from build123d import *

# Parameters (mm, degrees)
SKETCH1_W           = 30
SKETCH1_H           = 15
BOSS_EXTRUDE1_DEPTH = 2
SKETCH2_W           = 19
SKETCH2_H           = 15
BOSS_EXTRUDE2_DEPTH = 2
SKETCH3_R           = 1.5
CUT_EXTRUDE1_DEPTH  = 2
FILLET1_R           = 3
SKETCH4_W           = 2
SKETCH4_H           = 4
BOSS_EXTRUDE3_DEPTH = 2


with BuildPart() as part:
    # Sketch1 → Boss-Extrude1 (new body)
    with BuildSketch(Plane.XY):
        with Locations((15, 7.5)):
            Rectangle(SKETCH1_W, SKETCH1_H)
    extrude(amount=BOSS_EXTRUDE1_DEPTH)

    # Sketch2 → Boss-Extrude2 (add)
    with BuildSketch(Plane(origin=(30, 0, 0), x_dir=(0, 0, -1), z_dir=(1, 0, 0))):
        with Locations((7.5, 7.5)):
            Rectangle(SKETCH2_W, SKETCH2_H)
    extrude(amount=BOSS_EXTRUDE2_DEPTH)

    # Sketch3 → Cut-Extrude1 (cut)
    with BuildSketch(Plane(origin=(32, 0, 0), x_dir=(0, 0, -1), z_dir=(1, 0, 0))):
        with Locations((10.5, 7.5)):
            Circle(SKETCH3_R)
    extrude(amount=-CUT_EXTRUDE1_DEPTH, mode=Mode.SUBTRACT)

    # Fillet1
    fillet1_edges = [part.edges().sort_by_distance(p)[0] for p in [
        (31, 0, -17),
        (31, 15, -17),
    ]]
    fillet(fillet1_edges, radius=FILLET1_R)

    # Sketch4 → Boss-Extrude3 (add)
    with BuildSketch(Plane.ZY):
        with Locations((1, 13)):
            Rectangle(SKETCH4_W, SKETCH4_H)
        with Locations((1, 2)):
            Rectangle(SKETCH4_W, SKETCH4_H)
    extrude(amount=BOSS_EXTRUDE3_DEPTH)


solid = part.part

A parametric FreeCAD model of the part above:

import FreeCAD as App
import Part
import Sketcher

V = App.Vector
Q = App.Units.Quantity


def edges_at(feature, points):
    """Names of the edges that pass closest to the given points."""
    edges = feature.Shape.Edges
    near = lambda p: min(range(len(edges)), key=lambda i: edges[i].distToShape(Part.Vertex(*p))[0])
    return sorted({f"Edge{near(p) + 1}" for p in points})


def add_polygon(sketch, points):
    """Adds a closed chain of lines whose ends are joined by coincident constraints."""
    first, n = sketch.GeometryCount, len(points)
    for a, b in zip(points, points[1:] + points[:1]):
        sketch.addGeometry(Part.LineSegment(App.Vector(*a, 0), App.Vector(*b, 0)), False)
    for i in range(n):
        sketch.addConstraint(Sketcher.Constraint("Coincident", first + i, 2, first + (i + 1) % n, 1))

doc = App.newDocument("Part")
params = doc.addObject("Spreadsheet::Sheet", "Params")
for row, (alias, value) in enumerate([
    ("sketch1_width", "30 mm"),
    ("sketch1_height", "15 mm"),
    ("pad1_length", "2 mm"),
    ("sketch2_width", "15 mm"),
    ("sketch2_height", "19 mm"),
    ("pad2_length", "2 mm"),
    ("sketch3_diameter", "3 mm"),
    ("pocket1_length", "2 mm"),
    ("fillet_radius", "3 mm"),
    ("sketch4_width", "4 mm"),
    ("sketch4_height", "2 mm"),
    ("pad3_length", "2 mm"),
], start=1):
    params.set(f"A{row}", alias)
    params.set(f"B{row}", "=" + value)
    params.setAlias(f"B{row}", alias)

body = doc.addObject("PartDesign::Body", "Body")

# Sketch on XY plane
sketch1 = body.newObject("Sketcher::SketchObject", "Sketch")
sketch1.AttachmentSupport = (doc.getObject("XY_Plane"), [""])
sketch1.MapMode = "FlatFace"
add_polygon(sketch1, [(0, 15), (0, 0), (30, 0), (30, 15)])  # lines 0-3
sketch1.addConstraint([
    Sketcher.Constraint("Vertical", 0),
    Sketcher.Constraint("Horizontal", 1),
    Sketcher.Constraint("Vertical", 2),
    Sketcher.Constraint("Horizontal", 3),
    Sketcher.Constraint("Coincident", 0, 2, -1, 1),
    Sketcher.Constraint("DistanceX", 1, 1, 1, 2, Q("30 mm")),
    Sketcher.Constraint("DistanceY", 0, 2, 0, 1, Q("15 mm")),
])
sketch1.setExpression("Constraints[9]", "Params.sketch1_width")
sketch1.setExpression("Constraints[10]", "Params.sketch1_height")
pad1 = body.newObject("PartDesign::Pad", "Pad")
pad1.Profile = sketch1
pad1.setExpression("Length", "Params.pad1_length")

# Sketch on YZ plane
sketch2 = body.newObject("Sketcher::SketchObject", "Sketch001")
sketch2.AttachmentSupport = (doc.getObject("YZ_Plane"), [""])
sketch2.MapMode = "FlatFace"
sketch2.AttachmentOffset = App.Placement(V(0, 0, 30), App.Rotation())
add_polygon(sketch2, [(15, 2), (0, 2), (0, -17), (15, -17)])  # lines 0-3
sketch2.addConstraint([
    Sketcher.Constraint("Horizontal", 0),
    Sketcher.Constraint("Vertical", 1),
    Sketcher.Constraint("Horizontal", 2),
    Sketcher.Constraint("Vertical", 3),
    Sketcher.Constraint("PointOnObject", 0, 2, -2),
    Sketcher.Constraint("DistanceX", 0, 2, 0, 1, Q("15 mm")),
    Sketcher.Constraint("DistanceY", 1, 2, 1, 1, Q("19 mm")),
    Sketcher.Constraint("DistanceY", -1, 1, 0, 2, Q("2 mm")),
])
sketch2.setExpression("Constraints[9]", "Params.sketch2_width")
sketch2.setExpression("Constraints[10]", "Params.sketch2_height")
pad2 = body.newObject("PartDesign::Pad", "Pad001")
pad2.Profile = sketch2
pad2.setExpression("Length", "Params.pad2_length")

# Sketch on YZ plane
sketch3 = body.newObject("Sketcher::SketchObject", "Sketch002")
sketch3.AttachmentSupport = (doc.getObject("YZ_Plane"), [""])
sketch3.MapMode = "FlatFace"
sketch3.AttachmentOffset = App.Placement(V(0, 0, 32), App.Rotation())
sketch3.addGeometry(Part.Circle(V(7.5, -10.5, 0), V(0, 0, 1), 1.5), False)
sketch3.addConstraint([
    Sketcher.Constraint("Diameter", 0, Q("3 mm")),
    Sketcher.Constraint("DistanceX", -1, 1, 0, 3, Q("7.5 mm")),
    Sketcher.Constraint("DistanceY", 0, 3, -1, 1, Q("10.5 mm")),
])
sketch3.setExpression("Constraints[0]", "Params.sketch3_diameter")
pocket1 = body.newObject("PartDesign::Pocket", "Pocket")
pocket1.Profile = sketch3
pocket1.setExpression("Length", "Params.pocket1_length")
doc.recompute()

fillet = body.newObject("PartDesign::Fillet", "Fillet")
fillet.Base = (pocket1, edges_at(pocket1, [(31, 0, -17), (31, 15, -17)]))
fillet.setExpression("Radius", "Params.fillet_radius")

# Sketch on YZ plane
sketch4 = body.newObject("Sketcher::SketchObject", "Sketch003")
sketch4.AttachmentSupport = (doc.getObject("YZ_Plane"), [""])
sketch4.MapMode = "FlatFace"
add_polygon(sketch4, [(15, 0), (11, 0), (11, 2), (15, 2)])  # lines 0-3
add_polygon(sketch4, [(4, 0), (0, 0), (0, 2), (4, 2)])  # lines 4-7
sketch4.addConstraint([
    Sketcher.Constraint("Horizontal", 0),
    Sketcher.Constraint("Vertical", 1),
    Sketcher.Constraint("Horizontal", 2),
    Sketcher.Constraint("Vertical", 3),
    Sketcher.Constraint("Horizontal", 4),
    Sketcher.Constraint("Vertical", 5),
    Sketcher.Constraint("Horizontal", 6),
    Sketcher.Constraint("Vertical", 7),
    Sketcher.Constraint("Coincident", 4, 2, -1, 1),
    Sketcher.Constraint("PointOnObject", 0, 2, -1),
    Sketcher.Constraint("Horizontal", 2, 2, 5, 2),
    Sketcher.Constraint("Equal", 2, 4),
    Sketcher.Constraint("DistanceX", 0, 2, 0, 1, Q("4 mm")),
    Sketcher.Constraint("DistanceY", 1, 1, 1, 2, Q("2 mm")),
    Sketcher.Constraint("DistanceX", -1, 1, 0, 2, Q("11 mm")),
])
sketch4.setExpression("Constraints[20]", "Params.sketch4_width")
sketch4.setExpression("Constraints[21]", "Params.sketch4_height")
pad3 = body.newObject("PartDesign::Pad", "Pad002")
pad3.Profile = sketch4
pad3.setExpression("Length", "Params.pad3_length")
pad3.Reversed = True

doc.recompute()
